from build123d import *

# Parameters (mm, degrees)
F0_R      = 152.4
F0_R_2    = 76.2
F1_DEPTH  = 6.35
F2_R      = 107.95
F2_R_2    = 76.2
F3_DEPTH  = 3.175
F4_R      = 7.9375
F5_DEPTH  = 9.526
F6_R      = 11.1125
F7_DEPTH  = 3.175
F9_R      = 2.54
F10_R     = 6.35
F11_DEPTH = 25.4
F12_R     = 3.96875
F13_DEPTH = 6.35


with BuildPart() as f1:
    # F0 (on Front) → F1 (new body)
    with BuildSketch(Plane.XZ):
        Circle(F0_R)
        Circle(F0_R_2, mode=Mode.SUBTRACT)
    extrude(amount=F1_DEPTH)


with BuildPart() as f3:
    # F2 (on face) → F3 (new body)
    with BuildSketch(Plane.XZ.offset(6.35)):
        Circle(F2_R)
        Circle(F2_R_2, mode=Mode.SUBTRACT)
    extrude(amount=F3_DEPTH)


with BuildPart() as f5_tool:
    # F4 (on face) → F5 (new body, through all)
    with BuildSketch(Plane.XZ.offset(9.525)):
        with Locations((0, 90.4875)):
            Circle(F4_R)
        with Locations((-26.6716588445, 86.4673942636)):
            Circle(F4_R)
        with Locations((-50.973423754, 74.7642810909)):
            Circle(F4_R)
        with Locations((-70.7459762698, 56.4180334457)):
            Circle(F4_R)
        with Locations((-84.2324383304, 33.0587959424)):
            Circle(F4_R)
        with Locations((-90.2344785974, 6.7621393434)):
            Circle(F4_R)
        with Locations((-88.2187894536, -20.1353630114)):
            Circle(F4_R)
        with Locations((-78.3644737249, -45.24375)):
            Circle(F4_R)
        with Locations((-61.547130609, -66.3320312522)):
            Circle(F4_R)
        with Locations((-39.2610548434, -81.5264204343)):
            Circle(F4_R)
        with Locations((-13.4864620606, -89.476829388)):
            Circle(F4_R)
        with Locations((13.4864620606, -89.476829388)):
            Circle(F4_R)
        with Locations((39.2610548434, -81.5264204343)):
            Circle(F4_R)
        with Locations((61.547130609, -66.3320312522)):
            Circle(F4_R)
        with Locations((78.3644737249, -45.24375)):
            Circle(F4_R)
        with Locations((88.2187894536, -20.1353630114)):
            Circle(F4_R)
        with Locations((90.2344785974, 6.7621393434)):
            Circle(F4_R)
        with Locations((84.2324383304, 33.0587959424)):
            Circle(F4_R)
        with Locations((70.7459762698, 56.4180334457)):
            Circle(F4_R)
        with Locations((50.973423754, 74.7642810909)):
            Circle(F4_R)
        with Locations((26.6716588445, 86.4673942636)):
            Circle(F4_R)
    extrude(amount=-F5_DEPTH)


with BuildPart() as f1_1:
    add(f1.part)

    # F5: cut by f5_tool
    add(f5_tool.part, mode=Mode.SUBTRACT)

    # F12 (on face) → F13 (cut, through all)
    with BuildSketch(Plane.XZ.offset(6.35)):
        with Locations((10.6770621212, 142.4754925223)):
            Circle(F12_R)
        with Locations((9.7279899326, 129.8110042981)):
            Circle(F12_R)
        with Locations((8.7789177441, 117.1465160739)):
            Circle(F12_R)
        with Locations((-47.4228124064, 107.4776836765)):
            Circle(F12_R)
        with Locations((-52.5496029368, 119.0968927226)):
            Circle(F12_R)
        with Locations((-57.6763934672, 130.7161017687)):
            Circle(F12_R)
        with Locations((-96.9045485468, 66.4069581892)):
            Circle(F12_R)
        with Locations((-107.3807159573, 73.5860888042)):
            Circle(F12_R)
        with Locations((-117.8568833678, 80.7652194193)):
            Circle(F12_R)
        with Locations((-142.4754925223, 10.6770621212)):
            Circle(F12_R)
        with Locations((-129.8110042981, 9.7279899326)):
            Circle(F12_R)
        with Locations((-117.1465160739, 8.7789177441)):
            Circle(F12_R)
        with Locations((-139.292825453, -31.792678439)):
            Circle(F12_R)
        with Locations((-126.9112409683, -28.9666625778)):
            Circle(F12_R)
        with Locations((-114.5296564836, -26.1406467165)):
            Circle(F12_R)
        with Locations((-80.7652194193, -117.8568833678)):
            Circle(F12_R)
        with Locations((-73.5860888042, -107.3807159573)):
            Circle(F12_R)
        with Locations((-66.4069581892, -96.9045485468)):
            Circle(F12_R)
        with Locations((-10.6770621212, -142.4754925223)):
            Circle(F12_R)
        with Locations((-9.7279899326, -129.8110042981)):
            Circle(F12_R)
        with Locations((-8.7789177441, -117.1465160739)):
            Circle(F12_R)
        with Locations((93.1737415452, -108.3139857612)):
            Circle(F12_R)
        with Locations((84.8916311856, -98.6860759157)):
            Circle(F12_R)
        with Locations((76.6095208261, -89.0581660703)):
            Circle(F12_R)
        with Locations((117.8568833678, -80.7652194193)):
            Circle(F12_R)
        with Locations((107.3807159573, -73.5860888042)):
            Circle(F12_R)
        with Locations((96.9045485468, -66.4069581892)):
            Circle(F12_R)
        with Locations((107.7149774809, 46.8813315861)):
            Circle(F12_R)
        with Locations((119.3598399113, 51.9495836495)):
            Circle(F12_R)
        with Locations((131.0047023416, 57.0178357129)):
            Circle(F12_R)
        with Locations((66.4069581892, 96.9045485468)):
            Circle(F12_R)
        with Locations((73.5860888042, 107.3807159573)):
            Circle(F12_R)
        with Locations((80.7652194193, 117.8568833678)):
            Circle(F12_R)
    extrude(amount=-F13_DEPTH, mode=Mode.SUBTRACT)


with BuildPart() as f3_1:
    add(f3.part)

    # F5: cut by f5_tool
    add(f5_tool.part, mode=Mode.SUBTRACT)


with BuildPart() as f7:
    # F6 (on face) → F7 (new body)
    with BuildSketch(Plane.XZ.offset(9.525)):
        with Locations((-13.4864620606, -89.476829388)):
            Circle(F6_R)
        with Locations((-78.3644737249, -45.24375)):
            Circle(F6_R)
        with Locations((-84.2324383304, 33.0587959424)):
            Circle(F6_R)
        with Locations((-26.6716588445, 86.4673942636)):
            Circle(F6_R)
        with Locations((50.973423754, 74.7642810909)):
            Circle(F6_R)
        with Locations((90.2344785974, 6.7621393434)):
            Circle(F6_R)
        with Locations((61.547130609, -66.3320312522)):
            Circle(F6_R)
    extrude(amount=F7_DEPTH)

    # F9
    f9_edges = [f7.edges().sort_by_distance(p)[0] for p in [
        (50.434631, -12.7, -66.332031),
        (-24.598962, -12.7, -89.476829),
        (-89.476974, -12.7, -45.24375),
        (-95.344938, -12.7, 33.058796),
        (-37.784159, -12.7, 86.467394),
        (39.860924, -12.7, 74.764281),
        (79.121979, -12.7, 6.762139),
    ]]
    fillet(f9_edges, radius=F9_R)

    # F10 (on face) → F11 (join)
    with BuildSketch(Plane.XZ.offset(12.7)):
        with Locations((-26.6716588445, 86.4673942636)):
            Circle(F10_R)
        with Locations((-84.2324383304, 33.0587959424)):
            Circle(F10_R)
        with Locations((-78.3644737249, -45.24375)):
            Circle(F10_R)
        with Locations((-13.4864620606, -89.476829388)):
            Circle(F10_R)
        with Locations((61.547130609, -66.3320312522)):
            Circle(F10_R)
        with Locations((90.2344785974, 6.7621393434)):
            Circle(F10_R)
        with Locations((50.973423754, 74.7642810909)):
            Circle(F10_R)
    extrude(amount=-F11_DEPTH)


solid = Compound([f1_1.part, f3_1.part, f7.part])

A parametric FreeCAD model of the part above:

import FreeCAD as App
import Part
import Sketcher

V = App.Vector
Q = App.Units.Quantity


def edges_at(feature, points):
    """Names of the edges that pass closest to the given points."""
    edges = feature.Shape.Edges
    near = lambda p: min(range(len(edges)), key=lambda i: edges[i].distToShape(Part.Vertex(*p))[0])
    return sorted({f"Edge{near(p) + 1}" for p in points})

doc = App.newDocument("Part")
body = doc.addObject("PartDesign::Body", "Body")

sketch1 = doc.addObject("Sketcher::SketchObject", "Sketch")
body.addObject(sketch1)
sketch1.AttachmentSupport = (doc.XZ_Plane, [""])
sketch1.MapMode = "FlatFace"
sketch1.addGeometry([
    Part.Circle(V(0, 0, 0), V(0, 0, 1), 152),
    Part.Circle(V(0, 0, 0), V(0, 0, 1), 76),
], False)
sketch1.addConstraint([
    Sketcher.Constraint("Coincident", 0, 3, -1, 1),
    Sketcher.Constraint("Coincident", 1, 3, -1, 1),
    Sketcher.Constraint("Diameter", 0, Q("12 in")),
    Sketcher.Constraint("Diameter", 1, Q("6 in")),
])
pad1 = doc.addObject("PartDesign::Pad", "Pad")
body.addObject(pad1)
pad1.Profile = sketch1
pad1.Length = Q("0.25 in")
body2 = doc.addObject("PartDesign::Body", "Body001")

sketch2 = doc.addObject("Sketcher::SketchObject", "Sketch001")
body2.addObject(sketch2)
sketch2.AttachmentSupport = (doc.getObject("XZ_Plane001"), [""])
sketch2.MapMode = "FlatFace"
sketch2.AttachmentOffset = App.Placement(V(0, 0, 0.25 * 25.4), App.Rotation())
sketch2.addGeometry([
    Part.Circle(V(0, 0, 0), V(0, 0, 1), 108),
    Part.Circle(V(0, 0, 0), V(0, 0, 1), 76),
], False)
sketch2.addConstraint([
    Sketcher.Constraint("Coincident", 0, 3, -1, 1),
    Sketcher.Constraint("Coincident", 1, 3, -1, 1),
    Sketcher.Constraint("Diameter", 1, Q("6 in")),
    Sketcher.Constraint("Diameter", 0, Q("8.5 in")),
])
pad2 = doc.addObject("PartDesign::Pad", "Pad001")
body2.addObject(pad2)
pad2.Profile = sketch2
pad2.Length = Q("0.125 in")
body3 = doc.addObject("PartDesign::Body", "Body002")
body3.AllowCompound = True

sketch3 = doc.addObject("Sketcher::SketchObject", "Sketch002")
body3.addObject(sketch3)
sketch3.AttachmentSupport = (doc.getObject("XZ_Plane002"), [""])
sketch3.MapMode = "FlatFace"
sketch3.AttachmentOffset = App.Placement(V(0, 0, 0.375 * 25.4), App.Rotation())
sketch3.addGeometry([
    Part.Circle(V(0, 90, 0), V(0, 0, 1), 8),
    Part.Circle(V(-27, 86, 0), V(0, 0, 1), 8),
    Part.Circle(V(-51, 75, 0), V(0, 0, 1), 8),
    Part.Circle(V(-71, 56, 0), V(0, 0, 1), 8),
    Part.Circle(V(-84, 33, 0), V(0, 0, 1), 8),
    Part.Circle(V(-90, 7, 0), V(0, 0, 1), 8),
    Part.Circle(V(-88, -20, 0), V(0, 0, 1), 8),
    Part.Circle(V(-78, -45, 0), V(0, 0, 1), 8),
    Part.Circle(V(-62, -66, 0), V(0, 0, 1), 8),
    Part.Circle(V(-39, -82, 0), V(0, 0, 1), 8),
    Part.Circle(V(-13, -89, 0), V(0, 0, 1), 8),
    Part.Circle(V(13, -89, 0), V(0, 0, 1), 8),
    Part.Circle(V(39, -82, 0), V(0, 0, 1), 8),
    Part.Circle(V(62, -66, 0), V(0, 0, 1), 8),
    Part.Circle(V(78, -45, 0), V(0, 0, 1), 8),
    Part.Circle(V(88, -20, 0), V(0, 0, 1), 8),
    Part.Circle(V(90, 7, 0), V(0, 0, 1), 8),
    Part.Circle(V(84, 33, 0), V(0, 0, 1), 8),
    Part.Circle(V(71, 56, 0), V(0, 0, 1), 8),
    Part.Circle(V(51, 75, 0), V(0, 0, 1), 8),
    Part.Circle(V(27, 86, 0), V(0, 0, 1), 8),
], False)
sketch3.addConstraint([
    Sketcher.Constraint("Equal", 0, 1),
    Sketcher.Constraint("Equal", 1, 2),
    Sketcher.Constraint("Equal", 2, 3),
    Sketcher.Constraint("Equal", 3, 4),
    Sketcher.Constraint("Equal", 4, 5),
    Sketcher.Constraint("Equal", 5, 6),
    Sketcher.Constraint("Equal", 6, 7),
    Sketcher.Constraint("Equal", 7, 8),
    Sketcher.Constraint("Equal", 8, 9),
    Sketcher.Constraint("Equal", 9, 10),
    Sketcher.Constraint("Equal", 10, 11),
    Sketcher.Constraint("Equal", 11, 12),
    Sketcher.Constraint("Equal", 12, 13),
    Sketcher.Constraint("Equal", 13, 14),
    Sketcher.Constraint("Equal", 14, 15),
    Sketcher.Constraint("Equal", 15, 16),
    Sketcher.Constraint("Equal", 16, 17),
    Sketcher.Constraint("Equal", 17, 18),
    Sketcher.Constraint("Equal", 18, 19),
    Sketcher.Constraint("Equal", 19, 20),
    Sketcher.Constraint("Symmetric", 10, 3, 11, 3, -2),
    Sketcher.Constraint("Symmetric", 9, 3, 12, 3, -2),
    Sketcher.Constraint("Symmetric", 8, 3, 13, 3, -2),
    Sketcher.Constraint("Symmetric", 7, 3, 14, 3, -2),
    Sketcher.Constraint("Symmetric", 6, 3, 15, 3, -2),
    Sketcher.Constraint("Symmetric", 5, 3, 16, 3, -2),
    Sketcher.Constraint("Symmetric", 4, 3, 17, 3, -2),
    Sketcher.Constraint("Symmetric", 3, 3, 18, 3, -2),
    Sketcher.Constraint("Symmetric", 2, 3, 19, 3, -2),
    Sketcher.Constraint("Symmetric", 1, 3, 20, 3, -2),
    Sketcher.Constraint("PointOnObject", 0, 3, -2),
    Sketcher.Constraint("Diameter", 0, Q("0.625 in")),
    Sketcher.Constraint("DistanceY", -1, 1, 0, 3, Q("3.5625 in")),
    Sketcher.Constraint("DistanceY", 7, 3, -1, 1, Q("1.78125 in")),
    Sketcher.Constraint("DistanceX", 7, 3, 8, 3, Q("0.6621001 in")),
    Sketcher.Constraint("DistanceY", 4, 3, 1, 3, Q("53.408598 mm")),
    Sketcher.Constraint("DistanceY", 10, 3, 8, 3, Q("23.144798 mm")),
    Sketcher.Constraint("DistanceX", 1, 3, -1, 1, Q("26.671659 mm")),
    Sketcher.Constraint("DistanceY", -1, 1, 2, 3, Q("74.764281 mm")),
    Sketcher.Constraint("DistanceX", 4, 3, -1, 1, Q("84.232438 mm")),
    Sketcher.Constraint("DistanceX", 5, 3, -1, 1, Q("90.234479 mm")),
    Sketcher.Constraint("DistanceY", -1, 1, 5, 3, Q("6.762139 mm")),
    Sketcher.Constraint("DistanceX", 6, 3, -1, 1, Q("88.218789 mm")),
    Sketcher.Constraint("DistanceX", 8, 3, -1, 1, Q("61.547131 mm")),
    Sketcher.Constraint("DistanceY", 8, 3, -1, 1, Q("66.332031 mm")),
    Sketcher.Constraint("DistanceY", 9, 3, -1, 1, Q("81.52642 mm")),
    Sketcher.Constraint("DistanceY", 3, 3, 1, 3, Q("30.049361 mm")),
    Sketcher.Constraint("DistanceY", 6, 3, 4, 3, Q("53.194159 mm")),
    Sketcher.Constraint("DistanceX", 7, 3, 2, 3, Q("27.39105 mm")),
    Sketcher.Constraint("DistanceY", 8, 3, 6, 3, Q("46.196668 mm")),
    Sketcher.Constraint("DistanceX", 7, 3, 9, 3, Q("39.103419 mm")),
    Sketcher.Constraint("DistanceX", 8, 3, 10, 3, Q("48.060669 mm")),
    Sketcher.Constraint("DistanceX", 3, 3, -1, 1, Q("70.745976 mm")),
])
pad3 = doc.addObject("PartDesign::Pad", "Pad002")
body3.addObject(pad3)
pad3.Profile = sketch3
pad3.Length = 9.526
pad3.Reversed = True
doc.recompute()

body4 = doc.addObject("PartDesign::Body", "Body003")
body4.BaseFeature = body3
boolean = doc.addObject("PartDesign::Boolean", "Boolean")
body.addObject(boolean)
boolean.Type = "Cut"
boolean.addObjects([body4])
doc.recompute()

sketch4 = doc.addObject("Sketcher::SketchObject", "Sketch003")
body.addObject(sketch4)
sketch4.AttachmentSupport = (doc.XZ_Plane, [""])
sketch4.MapMode = "FlatFace"
sketch4.AttachmentOffset = App.Placement(V(0, 0, 0.25 * 25.4), App.Rotation())
sketch4.addGeometry([
    Part.Circle(V(10.7, 142.5, 0), V(0, 0, 1), 4),
    Part.Circle(V(9.7, 129.8, 0), V(0, 0, 1), 4),
    Part.Circle(V(8.8, 117.1, 0), V(0, 0, 1), 4),
    Part.Circle(V(-47.4, 107.5, 0), V(0, 0, 1), 4),
    Part.Circle(V(-52.5, 119.1, 0), V(0, 0, 1), 4),
    Part.Circle(V(-57.7, 130.7, 0), V(0, 0, 1), 4),
    Part.Circle(V(-96.9, 66.4, 0), V(0, 0, 1), 4),
    Part.Circle(V(-107.4, 73.6, 0), V(0, 0, 1), 4),
    Part.Circle(V(-117.9, 80.8, 0), V(0, 0, 1), 4),
    Part.Circle(V(-142.5, 10.7, 0), V(0, 0, 1), 4),
    Part.Circle(V(-129.8, 9.7, 0), V(0, 0, 1), 4),
    Part.Circle(V(-117.1, 8.8, 0), V(0, 0, 1), 4),
    Part.Circle(V(-139.3, -31.8, 0), V(0, 0, 1), 4),
    Part.Circle(V(-126.9, -29, 0), V(0, 0, 1), 4),
    Part.Circle(V(-114.5, -26.1, 0), V(0, 0, 1), 4),
    Part.Circle(V(-80.8, -117.9, 0), V(0, 0, 1), 4),
    Part.Circle(V(-73.6, -107.4, 0), V(0, 0, 1), 4),
    Part.Circle(V(-66.4, -96.9, 0), V(0, 0, 1), 4),
    Part.Circle(V(-10.7, -142.5, 0), V(0, 0, 1), 4),
    Part.Circle(V(-9.7, -129.8, 0), V(0, 0, 1), 4),
    Part.Circle(V(-8.8, -117.1, 0), V(0, 0, 1), 4),
    Part.Circle(V(93.2, -108.3, 0), V(0, 0, 1), 4),
    Part.Circle(V(84.9, -98.7, 0), V(0, 0, 1), 4),
    Part.Circle(V(76.6, -89.1, 0), V(0, 0, 1), 4),
    Part.Circle(V(117.9, -80.8, 0), V(0, 0, 1), 4),
    Part.Circle(V(107.4, -73.6, 0), V(0, 0, 1), 4),
    Part.Circle(V(96.9, -66.4, 0), V(0, 0, 1), 4),
    Part.Circle(V(107.7, 46.9, 0), V(0, 0, 1), 4),
    Part.Circle(V(119.4, 51.9, 0), V(0, 0, 1), 4),
    Part.Circle(V(131, 57, 0), V(0, 0, 1), 4),
    Part.Circle(V(66.4, 96.9, 0), V(0, 0, 1), 4),
    Part.Circle(V(73.6, 107.4, 0), V(0, 0, 1), 4),
    Part.Circle(V(80.8, 117.9, 0), V(0, 0, 1), 4),
], False)
sketch4.addConstraint([
    Sketcher.Constraint("Equal", 0, 1),
    Sketcher.Constraint("Equal", 1, 2),
    Sketcher.Constraint("Equal", 2, 3),
    Sketcher.Constraint("Equal", 3, 4),
    Sketcher.Constraint("Equal", 4, 5),
    Sketcher.Constraint("Equal", 5, 6),
    Sketcher.Constraint("Equal", 6, 7),
    Sketcher.Constraint("Equal", 7, 8),
    Sketcher.Constraint("Equal", 8, 9),
    Sketcher.Constraint("Equal", 9, 10),
    Sketcher.Constraint("Equal", 10, 11),
    Sketcher.Constraint("Equal", 11, 12),
    Sketcher.Constraint("Equal", 12, 13),
    Sketcher.Constraint("Equal", 13, 14),
    Sketcher.Constraint("Equal", 14, 15),
    Sketcher.Constraint("Equal", 15, 16),
    Sketcher.Constraint("Equal", 16, 17),
    Sketcher.Constraint("Equal", 17, 18),
    Sketcher.Constraint("Equal", 18, 19),
    Sketcher.Constraint("Equal", 19, 20),
    Sketcher.Constraint("Equal", 20, 21),
    Sketcher.Constraint("Equal", 21, 22),
    Sketcher.Constraint("Equal", 22, 23),
    Sketcher.Constraint("Equal", 23, 24),
    Sketcher.Constraint("Equal", 24, 25),
    Sketcher.Constraint("Equal", 25, 26),
    Sketcher.Constraint("Equal", 26, 27),
    Sketcher.Constraint("Equal", 27, 28),
    Sketcher.Constraint("Equal", 28, 29),
    Sketcher.Constraint("Equal", 29, 30),
    Sketcher.Constraint("Equal", 30, 31),
    Sketcher.Constraint("Equal", 31, 32),
    Sketcher.Constraint("Symmetric", 0, 3, 18, 3, -1, 1),
    Sketcher.Constraint("Symmetric", 1, 3, 19, 3, -1, 1),
    Sketcher.Constraint("Symmetric", 2, 3, 20, 3, -1, 1),
    Sketcher.Constraint("Symmetric", 8, 3, 24, 3, -1, 1),
    Sketcher.Constraint("Symmetric", 7, 3, 25, 3, -1, 1),
    Sketcher.Constraint("Symmetric", 6, 3, 26, 3, -1, 1),
    Sketcher.Constraint("Symmetric", 17, 3, 30, 3, -1, 1),
    Sketcher.Constraint("Symmetric", 16, 3, 31, 3, -1, 1),
    Sketcher.Constraint("Symmetric", 15, 3, 32, 3, -1, 1),
    Sketcher.Constraint("Diameter", 0, Q("0.3125 in")),
    Sketcher.Constraint("DistanceX", 6, 3, 3, 3, Q("1.9480998 in")),
    Sketcher.Constraint("DistanceX", 12, 3, 10, 3, Q("0.3733 in")),
    Sketcher.Constraint("DistanceX", 30, 3, 27, 3, Q("1.6263 in")),
    Sketcher.Constraint("DistanceY", -1, 1, 5, 3, Q("130.716102 mm")),
    Sketcher.Constraint("DistanceY", 4, 3, 0, 3, Q("23.3786 mm")),
    Sketcher.Constraint("DistanceY", 10, 3, 7, 3, Q("63.858099 mm")),
    Sketcher.Constraint("DistanceX", 11, 3, 7, 3, Q("9.7658 mm")),
    Sketcher.Constraint("DistanceY", 11, 3, 8, 3, Q("71.986302 mm")),
    Sketcher.Constraint("DistanceY", 15, 3, 11, 3, Q("126.635801 mm")),
    Sketcher.Constraint("DistanceX", 14, 3, 17, 3, Q("48.122698 mm")),
    Sketcher.Constraint("DistanceY", 17, 3, 14, 3, Q("70.763902 mm")),
    Sketcher.Constraint("DistanceX", 16, 3, 19, 3, Q("63.858099 mm")),
    Sketcher.Constraint("DistanceY", 20, 3, 16, 3, Q("9.7658 mm")),
    Sketcher.Constraint("DistanceX", 15, 3, 20, 3, Q("71.986302 mm")),
    Sketcher.Constraint("DistanceX", 17, 3, 21, 3, Q("159.5807 mm")),
    Sketcher.Constraint("DistanceX", 20, 3, 24, 3, Q("126.635801 mm")),
    Sketcher.Constraint("DistanceX", -1, 1, 1, 3, Q("9.72799 mm")),
    Sketcher.Constraint("DistanceX", 6, 3, -1, 1, Q("96.904549 mm")),
    Sketcher.Constraint("DistanceY", -1, 1, 6, 3, Q("66.406958 mm")),
    Sketcher.Constraint("DistanceY", -1, 1, 7, 3, Q("73.586089 mm")),
    Sketcher.Constraint("DistanceY", -1, 1, 8, 3, Q("80.765219 mm")),
    Sketcher.Constraint("DistanceY", 12, 3, -1, 1, Q("31.792678 mm")),
    Sketcher.Constraint("DistanceX", 13, 3, -1, 1, Q("126.911241 mm")),
    Sketcher.Constraint("DistanceX", 15, 3, -1, 1, Q("80.765219 mm")),
    Sketcher.Constraint("DistanceX", 17, 3, -1, 1, Q("66.406958 mm")),
    Sketcher.Constraint("DistanceY", 17, 3, -1, 1, Q("96.904549 mm")),
    Sketcher.Constraint("DistanceX", -1, 1, 22, 3, Q("84.891631 mm")),
    Sketcher.Constraint("DistanceX", -1, 1, 23, 3, Q("76.609521 mm")),
    Sketcher.Constraint("DistanceY", -1, 1, 27, 3, Q("46.881332 mm")),
    Sketcher.Constraint("DistanceX", -1, 1, 28, 3, Q("119.35984 mm")),
    Sketcher.Constraint("DistanceY", 1, 3, 0, 3, Q("12.664488 mm")),
    Sketcher.Constraint("DistanceY", 2, 3, 1, 3, Q("12.664488 mm")),
    Sketcher.Constraint("DistanceY", 3, 3, 1, 3, Q("22.333321 mm")),
    Sketcher.Constraint("DistanceX", 4, 3, 3, 3, Q("5.126791 mm")),
    Sketcher.Constraint("DistanceX", 5, 3, 4, 3, Q("5.126791 mm")),
    Sketcher.Constraint("DistanceY", 4, 3, 5, 3, Q("11.619209 mm")),
    Sketcher.Constraint("DistanceX", 9, 3, 8, 3, Q("24.618609 mm")),
    Sketcher.Constraint("DistanceY", 9, 3, 3, 3, Q("96.800622 mm")),
    Sketcher.Constraint("DistanceX", 9, 3, 10, 3, Q("12.664488 mm")),
    Sketcher.Constraint("DistanceX", 10, 3, 7, 3, Q("22.430288 mm")),
    Sketcher.Constraint("DistanceY", 13, 3, 11, 3, Q("37.74558 mm")),
    Sketcher.Constraint("DistanceX", 13, 3, 18, 3, Q("116.234179 mm")),
    Sketcher.Constraint("DistanceY", 20, 3, 21, 3, Q("8.83253 mm")),
    Sketcher.Constraint("DistanceY", 21, 3, 22, 3, Q("9.62791 mm")),
    Sketcher.Constraint("DistanceY", 22, 3, 23, 3, Q("9.62791 mm")),
    Sketcher.Constraint("DistanceY", 26, 3, 28, 3, Q("118.356542 mm")),
    Sketcher.Constraint("DistanceY", 29, 3, 2, 3, Q("60.12868 mm")),
    Sketcher.Constraint("DistanceX", -1, 1, 29, 3, Q("131.004702 mm")),
])
pocket1 = doc.addObject("PartDesign::Pocket", "Pocket")
body.addObject(pocket1)
pocket1.Profile = sketch4
pocket1.Type = "ThroughAll"
doc.recompute()

boolean2 = doc.addObject("PartDesign::Boolean", "Boolean001")
body2.addObject(boolean2)
boolean2.Type = "Cut"
boolean2.addObjects([body3])
body5 = doc.addObject("PartDesign::Body", "Body004")
body5.AllowCompound = True

sketch5 = doc.addObject("Sketcher::SketchObject", "Sketch004")
body5.addObject(sketch5)
sketch5.AttachmentSupport = (doc.getObject("XZ_Plane004"), [""])
sketch5.MapMode = "FlatFace"
sketch5.AttachmentOffset = App.Placement(V(0, 0, 0.375 * 25.4), App.Rotation())
sketch5.addGeometry([
    Part.Circle(V(-13, -89, 0), V(0, 0, 1), 11),
    Part.Circle(V(-78, -45, 0), V(0, 0, 1), 11),
    Part.Circle(V(-84, 33, 0), V(0, 0, 1), 11),
    Part.Circle(V(-27, 86, 0), V(0, 0, 1), 11),
    Part.Circle(V(51, 75, 0), V(0, 0, 1), 11),
    Part.Circle(V(90, 7, 0), V(0, 0, 1), 11),
    Part.Circle(V(62, -66, 0), V(0, 0, 1), 11),
], False)
sketch5.addConstraint([
    Sketcher.Constraint("Equal", 0, 1),
    Sketcher.Constraint("Equal", 1, 2),
    Sketcher.Constraint("Equal", 2, 3),
    Sketcher.Constraint("Equal", 3, 4),
    Sketcher.Constraint("Equal", 4, 5),
    Sketcher.Constraint("Equal", 5, 6),
    Sketcher.Constraint("Diameter", 0, Q("0.875 in")),
    Sketcher.Constraint("DistanceY", 1, 3, -1, 1, Q("1.78125 in")),
    Sketcher.Constraint("DistanceY", 2, 3, 3, 3, Q("53.408598 mm")),
    Sketcher.Constraint("DistanceY", 0, 3, 6, 3, Q("23.144798 mm")),
    Sketcher.Constraint("DistanceY", 0, 3, -1, 1, Q("89.476829 mm")),
    Sketcher.Constraint("DistanceX", 2, 3, -1, 1, Q("84.232438 mm")),
    Sketcher.Constraint("DistanceX", 3, 3, -1, 1, Q("26.671659 mm")),
    Sketcher.Constraint("DistanceY", -1, 1, 4, 3, Q("74.764281 mm")),
    Sketcher.Constraint("DistanceX", -1, 1, 5, 3, Q("90.234479 mm")),
    Sketcher.Constraint("DistanceY", -1, 1, 5, 3, Q("6.762139 mm")),
    Sketcher.Constraint("DistanceX", -1, 1, 6, 3, Q("61.547131 mm")),
    Sketcher.Constraint("DistanceX", 1, 3, 0, 3, Q("64.878012 mm")),
    Sketcher.Constraint("DistanceX", 0, 3, 5, 3, Q("103.720941 mm")),
    Sketcher.Constraint("DistanceY", -1, 1, 2, 3, Q("33.058796 mm")),
    Sketcher.Constraint("DistanceX", -1, 1, 4, 3, Q("50.973424 mm")),
])
pad4 = doc.addObject("PartDesign::Pad", "Pad003")
body5.addObject(pad4)
pad4.Profile = sketch5
pad4.Length = Q("0.125 in")
doc.recompute()

fillet = doc.addObject("PartDesign::Fillet", "Fillet")
body5.addObject(fillet)
fillet.Base = (pad4, edges_at(pad4, [
    (50.435, -12.7, -66.332),
    (-24.599, -12.7, -89.477),
    (-89.477, -12.7, -45.244),
    (-95.345, -12.7, 33.059),
    (-37.784, -12.7, 86.467),
    (39.861, -12.7, 74.764),
    (79.122, -12.7, 6.762),
]))
fillet.Radius = Q("0.1 in")

sketch6 = doc.addObject("Sketcher::SketchObject", "Sketch005")
body5.addObject(sketch6)
sketch6.AttachmentSupport = (doc.getObject("XZ_Plane004"), [""])
sketch6.MapMode = "FlatFace"
sketch6.AttachmentOffset = App.Placement(V(0, 0, 0.5 * 25.4), App.Rotation())
sketch6.addGeometry([
    Part.Circle(V(-27, 86, 0), V(0, 0, 1), 6),
    Part.Circle(V(-84, 33, 0), V(0, 0, 1), 6),
    Part.Circle(V(-78, -45, 0), V(0, 0, 1), 6),
    Part.Circle(V(-13, -89, 0), V(0, 0, 1), 6),
    Part.Circle(V(62, -66, 0), V(0, 0, 1), 6),
    Part.Circle(V(90, 7, 0), V(0, 0, 1), 6),
    Part.Circle(V(51, 75, 0), V(0, 0, 1), 6),
], False)
sketch6.addConstraint([
    Sketcher.Constraint("Equal", 0, 1),
    Sketcher.Constraint("Equal", 1, 2),
    Sketcher.Constraint("Equal", 2, 3),
    Sketcher.Constraint("Equal", 3, 4),
    Sketcher.Constraint("Equal", 4, 5),
    Sketcher.Constraint("Equal", 5, 6),
    Sketcher.Constraint("Diameter", 0, Q("0.5 in")),
    Sketcher.Constraint("DistanceY", 2, 3, -1, 1, Q("1.78125 in")),
    Sketcher.Constraint("DistanceY", 1, 3, 0, 3, Q("53.408598 mm")),
    Sketcher.Constraint("DistanceY", 3, 3, 4, 3, Q("23.144798 mm")),
    Sketcher.Constraint("DistanceX", 0, 3, -1, 1, Q("26.671659 mm")),
    Sketcher.Constraint("DistanceX", 1, 3, -1, 1, Q("84.232438 mm")),
    Sketcher.Constraint("DistanceY", 3, 3, -1, 1, Q("89.476829 mm")),
    Sketcher.Constraint("DistanceX", -1, 1, 4, 3, Q("61.547131 mm")),
    Sketcher.Constraint("DistanceX", -1, 1, 5, 3, Q("90.234479 mm")),
    Sketcher.Constraint("DistanceY", -1, 1, 5, 3, Q("6.762139 mm")),
    Sketcher.Constraint("DistanceY", -1, 1, 6, 3, Q("74.764281 mm")),
    Sketcher.Constraint("DistanceX", 2, 3, 3, 3, Q("64.878012 mm")),
    Sketcher.Constraint("DistanceX", 3, 3, 5, 3, Q("103.720941 mm")),
    Sketcher.Constraint("DistanceY", -1, 1, 0, 3, Q("86.467394 mm")),
    Sketcher.Constraint("DistanceX", -1, 1, 6, 3, Q("50.973424 mm")),
])
pad5 = doc.addObject("PartDesign::Pad", "Pad004")
body5.addObject(pad5)
pad5.Profile = sketch6
pad5.Length = Q("1 in")
pad5.Reversed = True

doc.recompute()
